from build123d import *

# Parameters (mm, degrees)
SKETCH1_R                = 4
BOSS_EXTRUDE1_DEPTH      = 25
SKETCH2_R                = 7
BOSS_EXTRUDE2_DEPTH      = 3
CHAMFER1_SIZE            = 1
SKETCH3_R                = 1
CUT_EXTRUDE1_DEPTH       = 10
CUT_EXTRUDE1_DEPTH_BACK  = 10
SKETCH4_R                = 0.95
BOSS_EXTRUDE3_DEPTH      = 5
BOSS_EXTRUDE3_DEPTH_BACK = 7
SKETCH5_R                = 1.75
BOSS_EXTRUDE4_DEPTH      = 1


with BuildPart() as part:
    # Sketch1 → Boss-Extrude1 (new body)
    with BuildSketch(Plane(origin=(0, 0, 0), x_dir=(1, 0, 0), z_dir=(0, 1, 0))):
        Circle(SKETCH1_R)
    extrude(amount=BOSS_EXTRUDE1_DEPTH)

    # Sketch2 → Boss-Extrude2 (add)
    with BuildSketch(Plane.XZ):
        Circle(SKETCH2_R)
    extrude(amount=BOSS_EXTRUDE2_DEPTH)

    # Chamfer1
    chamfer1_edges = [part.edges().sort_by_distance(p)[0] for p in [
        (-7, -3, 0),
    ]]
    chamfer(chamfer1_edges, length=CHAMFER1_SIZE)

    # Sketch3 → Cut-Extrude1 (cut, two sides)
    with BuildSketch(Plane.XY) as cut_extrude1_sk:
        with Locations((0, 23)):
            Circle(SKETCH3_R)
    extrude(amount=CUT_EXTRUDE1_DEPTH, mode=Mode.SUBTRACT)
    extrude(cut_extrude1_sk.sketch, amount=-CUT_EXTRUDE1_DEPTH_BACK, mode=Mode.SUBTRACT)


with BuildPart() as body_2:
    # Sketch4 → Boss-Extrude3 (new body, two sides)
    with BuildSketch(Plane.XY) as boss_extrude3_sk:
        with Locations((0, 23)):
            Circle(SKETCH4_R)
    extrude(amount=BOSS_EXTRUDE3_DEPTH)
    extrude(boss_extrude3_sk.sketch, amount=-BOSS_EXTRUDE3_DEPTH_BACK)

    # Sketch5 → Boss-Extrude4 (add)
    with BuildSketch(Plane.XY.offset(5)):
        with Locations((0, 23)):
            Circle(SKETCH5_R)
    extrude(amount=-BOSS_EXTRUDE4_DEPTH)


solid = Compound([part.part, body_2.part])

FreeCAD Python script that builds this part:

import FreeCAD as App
import Part
import Sketcher
from FreeCAD import Vector
Q = App.Units.Quantity


def edges_at(feature, points):
    """Names of the edges that pass closest to the given points."""
    edges = feature.Shape.Edges
    near = lambda p: min(range(len(edges)), key=lambda i: edges[i].distToShape(Part.Vertex(*p))[0])
    return sorted({f"Edge{near(p) + 1}" for p in points})

doc = App.newDocument("Part")
body = doc.addObject("PartDesign::Body", "Body")

# Sketch on XZ plane
sketch1 = body.newObject("Sketcher::SketchObject", "Sketch")
sketch1.AttachmentSupport = (doc.getObject("XZ_Plane"), [""])
sketch1.MapMode = "FlatFace"
sketch1.addGeometry(Part.Circle(Vector(0, 0, 0), Vector(0, 0, 1), 4), False)
sketch1.addConstraint([
    Sketcher.Constraint("Coincident", 0, 3, -1, 1),
    Sketcher.Constraint("Diameter", 0, Q("8 mm")),
])
pad1 = body.newObject("PartDesign::Pad", "Pad")
pad1.Profile = sketch1
pad1.Length = 25
pad1.Reversed = True

# Sketch on XZ plane
sketch2 = body.newObject("Sketcher::SketchObject", "Sketch001")
sketch2.AttachmentSupport = (doc.getObject("XZ_Plane"), [""])
sketch2.MapMode = "FlatFace"
sketch2.addGeometry(Part.Circle(Vector(0, 0, 0), Vector(0, 0, 1), 7), False)
sketch2.addConstraint([
    Sketcher.Constraint("Coincident", 0, 3, -1, 1),
    Sketcher.Constraint("Diameter", 0, Q("14 mm")),
])
pad2 = body.newObject("PartDesign::Pad", "Pad001")
pad2.Profile = sketch2
pad2.Length = 3
doc.recompute()

chamfer = body.newObject("PartDesign::Chamfer", "Chamfer")
chamfer.Base = (pad2, edges_at(pad2, [(-7, -3, 0)]))
chamfer.Size = 1

# Sketch on XY plane
sketch3 = body.newObject("Sketcher::SketchObject", "Sketch002")
sketch3.AttachmentSupport = (doc.getObject("XY_Plane"), [""])
sketch3.MapMode = "FlatFace"
sketch3.addGeometry(Part.Circle(Vector(0, 23, 0), Vector(0, 0, 1), 1), False)
sketch3.addConstraint([
    Sketcher.Constraint("PointOnObject", 0, 3, -2),
    Sketcher.Constraint("Diameter", 0, Q("2 mm")),
    Sketcher.Constraint("DistanceY", -1, 1, 0, 3, Q("23 mm")),
])
pocket1 = body.newObject("PartDesign::Pocket", "Pocket")
pocket1.Profile = sketch3
pocket1.Type = "ThroughAll"
pocket1.Midplane = True
body2 = doc.addObject("PartDesign::Body", "Body001")

# Sketch on XY plane
sketch4 = body2.newObject("Sketcher::SketchObject", "Sketch003")
sketch4.AttachmentSupport = (doc.getObject("XY_Plane001"), [""])
sketch4.MapMode = "FlatFace"
sketch4.addGeometry(Part.Circle(Vector(0, 23, 0), Vector(0, 0, 1), 0.95), False)
sketch4.addConstraint([
    Sketcher.Constraint("PointOnObject", 0, 3, -2),
    Sketcher.Constraint("Diameter", 0, Q("1.9 mm")),
    Sketcher.Constraint("DistanceY", -1, 1, 0, 3, Q("23 mm")),
])
pad3 = body2.newObject("PartDesign::Pad", "Pad002")
pad3.Profile = sketch4
pad3.Type = "TwoLengths"
pad3.Length = 5
pad3.Length2 = 7

# Sketch on XY plane
sketch5 = body2.newObject("Sketcher::SketchObject", "Sketch004")
sketch5.AttachmentSupport = (doc.getObject("XY_Plane001"), [""])
sketch5.MapMode = "FlatFace"
sketch5.AttachmentOffset = App.Placement(Vector(0, 0, 5), App.Rotation())
sketch5.addGeometry(Part.Circle(Vector(0, 23, 0), Vector(0, 0, 1), 1.75), False)
sketch5.addConstraint([
    Sketcher.Constraint("PointOnObject", 0, 3, -2),
    Sketcher.Constraint("Diameter", 0, Q("3.5 mm")),
    Sketcher.Constraint("DistanceY", -1, 1, 0, 3, Q("23 mm")),
])
pad4 = body2.newObject("PartDesign::Pad", "Pad003")
pad4.Profile = sketch5
pad4.Length = 1
pad4.Reversed = True

doc.recompute()
